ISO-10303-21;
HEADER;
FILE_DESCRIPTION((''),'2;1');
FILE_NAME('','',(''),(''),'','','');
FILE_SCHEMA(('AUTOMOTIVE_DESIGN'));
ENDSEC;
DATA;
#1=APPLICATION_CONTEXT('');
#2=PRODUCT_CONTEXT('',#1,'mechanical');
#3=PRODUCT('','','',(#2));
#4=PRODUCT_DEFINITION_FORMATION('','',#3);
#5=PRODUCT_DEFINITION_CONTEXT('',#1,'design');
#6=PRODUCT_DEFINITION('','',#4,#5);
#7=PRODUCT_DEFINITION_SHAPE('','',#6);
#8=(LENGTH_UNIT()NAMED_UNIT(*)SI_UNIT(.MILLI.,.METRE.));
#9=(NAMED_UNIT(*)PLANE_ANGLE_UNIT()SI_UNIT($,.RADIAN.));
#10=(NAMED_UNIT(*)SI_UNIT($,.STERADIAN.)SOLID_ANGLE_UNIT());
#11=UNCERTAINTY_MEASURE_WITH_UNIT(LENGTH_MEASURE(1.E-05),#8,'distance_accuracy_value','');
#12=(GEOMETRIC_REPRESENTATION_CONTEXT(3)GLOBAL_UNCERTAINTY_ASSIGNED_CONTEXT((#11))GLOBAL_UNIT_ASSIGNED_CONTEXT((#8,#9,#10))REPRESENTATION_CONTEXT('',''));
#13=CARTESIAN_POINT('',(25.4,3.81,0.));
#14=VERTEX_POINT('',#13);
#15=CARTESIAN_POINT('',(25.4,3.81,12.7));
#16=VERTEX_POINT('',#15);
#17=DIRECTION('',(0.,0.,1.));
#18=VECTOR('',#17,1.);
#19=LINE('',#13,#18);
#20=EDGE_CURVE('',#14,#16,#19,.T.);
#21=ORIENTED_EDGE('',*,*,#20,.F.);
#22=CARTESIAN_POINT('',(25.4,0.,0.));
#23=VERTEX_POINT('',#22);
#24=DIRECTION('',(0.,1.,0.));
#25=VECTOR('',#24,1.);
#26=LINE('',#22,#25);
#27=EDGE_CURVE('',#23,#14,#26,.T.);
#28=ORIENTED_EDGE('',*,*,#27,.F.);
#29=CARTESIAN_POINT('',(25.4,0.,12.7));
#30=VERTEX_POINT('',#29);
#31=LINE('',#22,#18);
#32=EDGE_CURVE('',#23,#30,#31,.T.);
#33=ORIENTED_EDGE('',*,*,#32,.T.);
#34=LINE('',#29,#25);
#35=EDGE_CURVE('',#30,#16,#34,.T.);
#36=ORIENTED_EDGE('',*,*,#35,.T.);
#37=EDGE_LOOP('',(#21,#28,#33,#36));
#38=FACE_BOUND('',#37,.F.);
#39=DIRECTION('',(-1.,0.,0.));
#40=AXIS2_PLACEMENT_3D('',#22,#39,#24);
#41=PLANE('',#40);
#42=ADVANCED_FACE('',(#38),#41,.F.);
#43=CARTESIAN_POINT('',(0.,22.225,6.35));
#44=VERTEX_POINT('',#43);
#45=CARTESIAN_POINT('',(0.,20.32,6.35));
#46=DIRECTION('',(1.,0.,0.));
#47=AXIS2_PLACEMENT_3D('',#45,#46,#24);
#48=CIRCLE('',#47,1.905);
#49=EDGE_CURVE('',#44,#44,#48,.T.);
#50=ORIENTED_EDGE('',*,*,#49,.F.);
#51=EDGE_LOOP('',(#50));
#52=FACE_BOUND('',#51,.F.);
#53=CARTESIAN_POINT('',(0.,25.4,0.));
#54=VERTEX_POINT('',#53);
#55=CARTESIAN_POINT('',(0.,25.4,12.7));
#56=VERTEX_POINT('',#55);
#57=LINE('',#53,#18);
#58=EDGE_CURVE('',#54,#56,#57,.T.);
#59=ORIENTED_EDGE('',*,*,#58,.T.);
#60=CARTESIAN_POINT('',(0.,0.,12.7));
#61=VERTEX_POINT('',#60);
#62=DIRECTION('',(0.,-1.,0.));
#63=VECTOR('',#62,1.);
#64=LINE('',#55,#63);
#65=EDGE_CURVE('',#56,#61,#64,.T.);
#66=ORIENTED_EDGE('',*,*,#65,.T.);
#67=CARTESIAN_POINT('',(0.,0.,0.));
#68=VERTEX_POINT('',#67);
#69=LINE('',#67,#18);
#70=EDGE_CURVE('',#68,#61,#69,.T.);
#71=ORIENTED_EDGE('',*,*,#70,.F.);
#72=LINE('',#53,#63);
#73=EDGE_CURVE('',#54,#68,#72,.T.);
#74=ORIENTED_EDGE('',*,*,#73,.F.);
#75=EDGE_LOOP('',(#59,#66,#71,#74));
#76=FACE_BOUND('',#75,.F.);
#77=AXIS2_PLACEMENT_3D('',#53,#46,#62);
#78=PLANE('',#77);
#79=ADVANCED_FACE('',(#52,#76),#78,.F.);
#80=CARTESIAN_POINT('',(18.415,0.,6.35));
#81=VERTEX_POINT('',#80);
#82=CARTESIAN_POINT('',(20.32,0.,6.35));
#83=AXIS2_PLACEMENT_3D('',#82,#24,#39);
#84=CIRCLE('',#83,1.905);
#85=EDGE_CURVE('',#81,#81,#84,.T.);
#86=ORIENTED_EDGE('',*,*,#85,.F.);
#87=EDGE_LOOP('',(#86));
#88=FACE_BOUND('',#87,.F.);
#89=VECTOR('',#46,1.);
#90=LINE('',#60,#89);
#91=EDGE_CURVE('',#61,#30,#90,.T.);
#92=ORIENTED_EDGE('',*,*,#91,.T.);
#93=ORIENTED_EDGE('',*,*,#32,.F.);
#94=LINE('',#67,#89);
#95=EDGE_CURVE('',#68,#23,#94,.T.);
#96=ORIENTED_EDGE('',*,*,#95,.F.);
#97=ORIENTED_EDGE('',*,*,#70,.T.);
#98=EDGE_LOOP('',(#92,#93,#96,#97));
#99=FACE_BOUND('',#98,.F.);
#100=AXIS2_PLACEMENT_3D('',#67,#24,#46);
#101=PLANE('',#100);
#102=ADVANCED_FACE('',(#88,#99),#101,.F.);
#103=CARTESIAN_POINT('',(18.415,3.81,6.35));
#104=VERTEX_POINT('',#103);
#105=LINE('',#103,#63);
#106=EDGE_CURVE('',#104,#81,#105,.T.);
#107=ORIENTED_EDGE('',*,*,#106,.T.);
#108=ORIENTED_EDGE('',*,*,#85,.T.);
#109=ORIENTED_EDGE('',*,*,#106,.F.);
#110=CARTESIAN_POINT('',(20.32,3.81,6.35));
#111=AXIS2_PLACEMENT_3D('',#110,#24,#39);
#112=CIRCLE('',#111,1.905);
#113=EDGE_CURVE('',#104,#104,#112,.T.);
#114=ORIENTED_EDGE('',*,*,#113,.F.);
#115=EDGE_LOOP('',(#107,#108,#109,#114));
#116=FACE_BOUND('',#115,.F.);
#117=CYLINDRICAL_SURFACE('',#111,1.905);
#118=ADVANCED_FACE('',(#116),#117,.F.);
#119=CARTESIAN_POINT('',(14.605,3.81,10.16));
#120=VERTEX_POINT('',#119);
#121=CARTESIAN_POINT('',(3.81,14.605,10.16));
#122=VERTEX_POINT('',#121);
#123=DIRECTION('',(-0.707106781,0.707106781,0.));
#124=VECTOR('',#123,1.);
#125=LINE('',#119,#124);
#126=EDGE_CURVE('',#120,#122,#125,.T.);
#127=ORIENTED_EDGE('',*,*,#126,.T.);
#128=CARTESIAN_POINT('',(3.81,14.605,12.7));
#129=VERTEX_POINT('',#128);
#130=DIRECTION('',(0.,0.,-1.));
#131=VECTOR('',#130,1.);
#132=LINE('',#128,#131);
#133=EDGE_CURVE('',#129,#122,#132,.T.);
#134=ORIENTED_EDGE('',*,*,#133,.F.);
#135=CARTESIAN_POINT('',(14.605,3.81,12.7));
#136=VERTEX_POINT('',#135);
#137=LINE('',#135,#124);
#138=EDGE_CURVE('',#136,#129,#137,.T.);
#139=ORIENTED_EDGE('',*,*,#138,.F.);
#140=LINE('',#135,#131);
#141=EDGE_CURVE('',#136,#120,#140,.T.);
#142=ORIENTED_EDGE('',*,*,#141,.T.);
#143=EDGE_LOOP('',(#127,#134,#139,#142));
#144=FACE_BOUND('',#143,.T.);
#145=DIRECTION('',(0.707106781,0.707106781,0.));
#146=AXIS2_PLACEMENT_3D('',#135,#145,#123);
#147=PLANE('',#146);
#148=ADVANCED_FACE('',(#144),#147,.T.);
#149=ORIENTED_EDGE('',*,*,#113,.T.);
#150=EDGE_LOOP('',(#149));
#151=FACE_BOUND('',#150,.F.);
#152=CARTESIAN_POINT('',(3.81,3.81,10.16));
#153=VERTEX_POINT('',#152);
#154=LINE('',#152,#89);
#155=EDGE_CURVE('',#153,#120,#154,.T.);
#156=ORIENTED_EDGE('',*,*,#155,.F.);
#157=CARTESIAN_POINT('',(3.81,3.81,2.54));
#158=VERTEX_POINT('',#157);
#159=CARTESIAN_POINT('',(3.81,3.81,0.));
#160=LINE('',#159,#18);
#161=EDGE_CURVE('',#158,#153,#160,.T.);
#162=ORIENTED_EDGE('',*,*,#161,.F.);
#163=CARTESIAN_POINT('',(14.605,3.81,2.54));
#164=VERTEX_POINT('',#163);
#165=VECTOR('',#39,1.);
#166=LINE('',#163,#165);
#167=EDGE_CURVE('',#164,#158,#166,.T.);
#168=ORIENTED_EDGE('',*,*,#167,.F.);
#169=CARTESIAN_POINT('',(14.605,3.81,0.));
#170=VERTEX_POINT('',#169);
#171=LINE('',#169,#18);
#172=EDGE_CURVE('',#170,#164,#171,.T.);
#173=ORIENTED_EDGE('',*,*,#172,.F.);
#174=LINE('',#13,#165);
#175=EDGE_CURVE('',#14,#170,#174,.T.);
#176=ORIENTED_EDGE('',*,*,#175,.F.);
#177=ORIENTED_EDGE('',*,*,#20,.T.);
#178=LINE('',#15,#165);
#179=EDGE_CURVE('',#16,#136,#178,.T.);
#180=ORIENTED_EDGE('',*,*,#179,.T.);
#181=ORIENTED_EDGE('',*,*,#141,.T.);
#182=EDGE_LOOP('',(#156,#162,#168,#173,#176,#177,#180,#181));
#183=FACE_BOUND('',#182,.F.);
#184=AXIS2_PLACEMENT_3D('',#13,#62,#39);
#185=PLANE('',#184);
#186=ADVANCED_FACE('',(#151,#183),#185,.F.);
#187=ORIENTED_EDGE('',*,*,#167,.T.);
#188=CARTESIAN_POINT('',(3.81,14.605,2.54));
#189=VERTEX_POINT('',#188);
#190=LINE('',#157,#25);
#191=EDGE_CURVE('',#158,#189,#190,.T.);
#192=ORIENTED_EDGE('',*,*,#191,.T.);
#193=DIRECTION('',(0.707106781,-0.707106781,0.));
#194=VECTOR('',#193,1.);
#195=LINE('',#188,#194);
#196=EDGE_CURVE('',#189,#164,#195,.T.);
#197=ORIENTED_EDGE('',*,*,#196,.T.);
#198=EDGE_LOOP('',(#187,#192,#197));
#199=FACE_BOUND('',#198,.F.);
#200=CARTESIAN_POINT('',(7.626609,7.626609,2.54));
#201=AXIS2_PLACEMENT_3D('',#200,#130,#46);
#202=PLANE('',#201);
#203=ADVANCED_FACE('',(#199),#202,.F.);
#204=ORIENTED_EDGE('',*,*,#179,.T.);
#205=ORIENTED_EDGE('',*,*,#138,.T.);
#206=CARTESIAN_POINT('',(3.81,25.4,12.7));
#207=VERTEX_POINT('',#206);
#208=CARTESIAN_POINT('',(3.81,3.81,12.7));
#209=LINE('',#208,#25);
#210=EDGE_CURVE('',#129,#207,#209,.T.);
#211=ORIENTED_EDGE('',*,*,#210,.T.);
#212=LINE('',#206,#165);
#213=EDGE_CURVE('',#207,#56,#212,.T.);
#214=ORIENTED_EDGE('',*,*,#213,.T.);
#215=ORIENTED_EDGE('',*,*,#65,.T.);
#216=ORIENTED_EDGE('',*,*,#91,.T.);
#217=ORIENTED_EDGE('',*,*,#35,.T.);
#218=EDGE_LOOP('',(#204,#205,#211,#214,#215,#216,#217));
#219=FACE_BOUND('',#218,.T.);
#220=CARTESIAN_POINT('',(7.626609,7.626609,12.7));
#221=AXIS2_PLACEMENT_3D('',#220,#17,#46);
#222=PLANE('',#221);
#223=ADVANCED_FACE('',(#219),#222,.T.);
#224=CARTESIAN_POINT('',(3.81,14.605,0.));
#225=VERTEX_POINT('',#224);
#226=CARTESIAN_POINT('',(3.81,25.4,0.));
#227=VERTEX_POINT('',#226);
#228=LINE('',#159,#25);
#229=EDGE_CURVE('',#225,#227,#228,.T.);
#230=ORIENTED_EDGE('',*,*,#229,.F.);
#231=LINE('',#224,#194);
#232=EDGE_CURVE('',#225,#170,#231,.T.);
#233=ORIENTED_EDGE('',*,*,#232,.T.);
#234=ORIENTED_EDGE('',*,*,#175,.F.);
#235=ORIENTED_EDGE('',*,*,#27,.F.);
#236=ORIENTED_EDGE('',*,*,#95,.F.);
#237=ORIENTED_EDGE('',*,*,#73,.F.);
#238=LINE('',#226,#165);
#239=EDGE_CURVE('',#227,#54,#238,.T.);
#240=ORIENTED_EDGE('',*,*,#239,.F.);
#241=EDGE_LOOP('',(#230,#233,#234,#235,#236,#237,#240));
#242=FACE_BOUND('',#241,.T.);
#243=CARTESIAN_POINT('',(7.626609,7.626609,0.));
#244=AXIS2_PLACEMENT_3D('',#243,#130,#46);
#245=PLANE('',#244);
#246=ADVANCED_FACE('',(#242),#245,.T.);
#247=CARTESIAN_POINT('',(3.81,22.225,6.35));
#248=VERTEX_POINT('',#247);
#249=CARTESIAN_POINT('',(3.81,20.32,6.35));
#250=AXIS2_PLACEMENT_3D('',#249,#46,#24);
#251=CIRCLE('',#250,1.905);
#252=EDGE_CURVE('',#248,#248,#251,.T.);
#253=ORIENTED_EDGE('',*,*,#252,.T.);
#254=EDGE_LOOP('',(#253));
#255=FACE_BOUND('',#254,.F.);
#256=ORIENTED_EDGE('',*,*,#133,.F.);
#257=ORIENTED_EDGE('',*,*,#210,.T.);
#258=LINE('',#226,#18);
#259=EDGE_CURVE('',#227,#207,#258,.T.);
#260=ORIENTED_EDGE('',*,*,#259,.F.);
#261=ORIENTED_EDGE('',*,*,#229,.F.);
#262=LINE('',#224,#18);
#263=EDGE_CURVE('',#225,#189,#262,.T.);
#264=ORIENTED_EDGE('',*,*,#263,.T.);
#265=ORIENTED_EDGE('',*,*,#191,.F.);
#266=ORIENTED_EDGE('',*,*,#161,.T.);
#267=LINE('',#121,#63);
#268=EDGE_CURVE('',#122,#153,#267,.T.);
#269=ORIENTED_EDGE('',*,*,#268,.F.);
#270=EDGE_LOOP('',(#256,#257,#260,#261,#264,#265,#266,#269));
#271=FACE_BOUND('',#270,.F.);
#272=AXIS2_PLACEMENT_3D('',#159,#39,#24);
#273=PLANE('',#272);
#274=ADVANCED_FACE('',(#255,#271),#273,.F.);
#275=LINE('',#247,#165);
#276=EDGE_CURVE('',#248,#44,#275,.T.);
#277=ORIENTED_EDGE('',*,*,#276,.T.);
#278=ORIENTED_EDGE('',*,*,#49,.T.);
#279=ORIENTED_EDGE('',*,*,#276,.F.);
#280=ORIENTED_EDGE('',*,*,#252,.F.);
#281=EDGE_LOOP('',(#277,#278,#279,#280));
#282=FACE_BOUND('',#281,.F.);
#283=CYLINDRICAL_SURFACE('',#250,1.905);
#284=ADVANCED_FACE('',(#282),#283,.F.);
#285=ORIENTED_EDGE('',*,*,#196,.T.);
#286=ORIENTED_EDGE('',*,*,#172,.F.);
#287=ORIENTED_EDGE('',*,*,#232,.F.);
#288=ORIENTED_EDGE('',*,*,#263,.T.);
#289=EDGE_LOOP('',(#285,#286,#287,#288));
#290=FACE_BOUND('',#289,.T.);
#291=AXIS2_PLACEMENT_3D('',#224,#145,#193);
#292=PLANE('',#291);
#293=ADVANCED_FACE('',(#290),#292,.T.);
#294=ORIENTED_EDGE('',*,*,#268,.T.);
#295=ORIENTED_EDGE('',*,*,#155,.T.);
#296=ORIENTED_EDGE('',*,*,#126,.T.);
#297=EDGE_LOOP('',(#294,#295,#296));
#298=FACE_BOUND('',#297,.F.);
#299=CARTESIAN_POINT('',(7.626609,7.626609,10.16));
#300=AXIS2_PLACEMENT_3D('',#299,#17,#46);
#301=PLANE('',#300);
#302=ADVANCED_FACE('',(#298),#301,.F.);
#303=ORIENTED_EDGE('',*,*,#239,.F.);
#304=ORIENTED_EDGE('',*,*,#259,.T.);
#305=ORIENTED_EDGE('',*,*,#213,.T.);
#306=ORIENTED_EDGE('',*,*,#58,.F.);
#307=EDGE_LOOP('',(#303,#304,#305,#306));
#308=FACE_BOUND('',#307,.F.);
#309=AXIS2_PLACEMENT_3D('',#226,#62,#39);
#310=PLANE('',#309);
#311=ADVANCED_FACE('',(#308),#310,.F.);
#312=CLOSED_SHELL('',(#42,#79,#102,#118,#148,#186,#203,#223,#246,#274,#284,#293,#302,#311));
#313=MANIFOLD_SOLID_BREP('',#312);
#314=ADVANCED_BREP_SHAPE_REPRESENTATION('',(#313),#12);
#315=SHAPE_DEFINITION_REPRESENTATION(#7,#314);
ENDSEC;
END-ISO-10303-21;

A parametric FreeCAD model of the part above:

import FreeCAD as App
import Part
import Sketcher

V = App.Vector
Q = App.Units.Quantity


def add_polygon(sketch, points):
    """Adds a closed chain of lines whose ends are joined by coincident constraints."""
    first, n = sketch.GeometryCount, len(points)
    for a, b in zip(points, points[1:] + points[:1]):
        sketch.addGeometry(Part.LineSegment(App.Vector(*a, 0), App.Vector(*b, 0)), False)
    for i in range(n):
        sketch.addConstraint(Sketcher.Constraint("Coincident", first + i, 2, first + (i + 1) % n, 1))

doc = App.newDocument("Part")
body = doc.addObject("PartDesign::Body", "Body")

sketch1 = body.newObject("Sketcher::SketchObject", "Sketch")
sketch1.AttachmentSupport = (doc.getObject("XY_Plane"), [""])
sketch1.MapMode = "FlatFace"
add_polygon(sketch1, [(0, 25.4), (0, 0), (25.4, 0), (25.4, 3.8), (3.8, 3.8), (3.8, 25.4)])
sketch1.addConstraint([
    Sketcher.Constraint("Vertical", 0),
    Sketcher.Constraint("Horizontal", 1),
    Sketcher.Constraint("Vertical", 2),
    Sketcher.Constraint("Horizontal", 3),
    Sketcher.Constraint("Vertical", 4),
    Sketcher.Constraint("Horizontal", 5),
    Sketcher.Constraint("Coincident", 0, 2, -1, 1),
    Sketcher.Constraint("Equal", 1, 0),
    Sketcher.Constraint("Equal", 5, 2),
    Sketcher.Constraint("DistanceX", 1, 1, 1, 2, Q("1 in")),
    Sketcher.Constraint("DistanceX", 3, 2, 3, 1, Q("0.85 in")),
])
pad1 = body.newObject("PartDesign::Pad", "Pad")
pad1.Profile = sketch1
pad1.Length = Q("0.5 in")

sketch2 = body.newObject("Sketcher::SketchObject", "Sketch001")
sketch2.AttachmentSupport = (doc.getObject("XY_Plane"), [""])
sketch2.MapMode = "FlatFace"
sketch2.AttachmentOffset = App.Placement(V(0, 0, 0.5 * 25.4), App.Rotation())
add_polygon(sketch2, [(15, 4), (4, 15), (4, 4)])
sketch2.addConstraint([
    Sketcher.Constraint("Vertical", 1),
    Sketcher.Constraint("Horizontal", 2),
    Sketcher.Constraint("Equal", 2, 1),
    Sketcher.Constraint("DistanceX", 2, 1, 2, 2, Q("0.425 in")),
    Sketcher.Constraint("DistanceX", -1, 1, 0, 2, Q("0.15 in")),
    Sketcher.Constraint("DistanceY", -1, 1, 1, 2, Q("0.15 in")),
])
pad2 = body.newObject("PartDesign::Pad", "Pad001")
pad2.Profile = sketch2
pad2.Length = Q("0.1 in")
pad2.Reversed = True

sketch3 = body.newObject("Sketcher::SketchObject", "Sketch002")
sketch3.AttachmentSupport = (doc.getObject("YZ_Plane"), [""])
sketch3.MapMode = "FlatFace"
sketch3.AttachmentOffset = App.Placement(V(0, 0, 0.15 * 25.4), App.Rotation())
sketch3.addGeometry(Part.Circle(V(20.3, 6.3, 0), V(0, 0, 1), 1.9), False)
sketch3.addConstraint([
    Sketcher.Constraint("Diameter", 0, Q("0.15 in")),
    Sketcher.Constraint("DistanceX", -1, 1, 0, 3, Q("0.8 in")),
    Sketcher.Constraint("DistanceY", -1, 1, 0, 3, Q("0.25 in")),
])
pocket1 = body.newObject("PartDesign::Pocket", "Pocket")
pocket1.Profile = sketch3
pocket1.Length = Q("1 in")

sketch4 = body.newObject("Sketcher::SketchObject", "Sketch003")
sketch4.AttachmentSupport = (doc.getObject("XY_Plane"), [""])
sketch4.MapMode = "FlatFace"
add_polygon(sketch4, [(4, 15), (15, 4), (4, 4)])
sketch4.addConstraint([
    Sketcher.Constraint("Horizontal", 1),
    Sketcher.Constraint("Vertical", 2),
    Sketcher.Constraint("Equal", 1, 2),
    Sketcher.Constraint("DistanceX", 1, 2, 1, 1, Q("0.425 in")),
    Sketcher.Constraint("DistanceY", -1, 1, 0, 2, Q("0.15 in")),
    Sketcher.Constraint("DistanceX", -1, 1, 1, 2, Q("0.15 in")),
])
pad3 = body.newObject("PartDesign::Pad", "Pad002")
pad3.Profile = sketch4
pad3.Length = Q("0.1 in")

sketch5 = body.newObject("Sketcher::SketchObject", "Sketch004")
sketch5.AttachmentSupport = (doc.getObject("XZ_Plane"), [""])
sketch5.MapMode = "FlatFace"
sketch5.AttachmentOffset = App.Placement(V(0, 0, -0.15 * 25.4), App.Rotation())
sketch5.addGeometry(Part.Circle(V(20.3, 6.3, 0), V(0, 0, 1), 1.9), False)
sketch5.addConstraint([
    Sketcher.Constraint("Diameter", 0, Q("0.15 in")),
    Sketcher.Constraint("DistanceX", -1, 1, 0, 3, Q("0.8 in")),
    Sketcher.Constraint("DistanceY", -1, 1, 0, 3, Q("0.25 in")),
])
pocket2 = body.newObject("PartDesign::Pocket", "Pocket001")
pocket2.Profile = sketch5
pocket2.Length = Q("1 in")
pocket2.Reversed = True

doc.recompute()
